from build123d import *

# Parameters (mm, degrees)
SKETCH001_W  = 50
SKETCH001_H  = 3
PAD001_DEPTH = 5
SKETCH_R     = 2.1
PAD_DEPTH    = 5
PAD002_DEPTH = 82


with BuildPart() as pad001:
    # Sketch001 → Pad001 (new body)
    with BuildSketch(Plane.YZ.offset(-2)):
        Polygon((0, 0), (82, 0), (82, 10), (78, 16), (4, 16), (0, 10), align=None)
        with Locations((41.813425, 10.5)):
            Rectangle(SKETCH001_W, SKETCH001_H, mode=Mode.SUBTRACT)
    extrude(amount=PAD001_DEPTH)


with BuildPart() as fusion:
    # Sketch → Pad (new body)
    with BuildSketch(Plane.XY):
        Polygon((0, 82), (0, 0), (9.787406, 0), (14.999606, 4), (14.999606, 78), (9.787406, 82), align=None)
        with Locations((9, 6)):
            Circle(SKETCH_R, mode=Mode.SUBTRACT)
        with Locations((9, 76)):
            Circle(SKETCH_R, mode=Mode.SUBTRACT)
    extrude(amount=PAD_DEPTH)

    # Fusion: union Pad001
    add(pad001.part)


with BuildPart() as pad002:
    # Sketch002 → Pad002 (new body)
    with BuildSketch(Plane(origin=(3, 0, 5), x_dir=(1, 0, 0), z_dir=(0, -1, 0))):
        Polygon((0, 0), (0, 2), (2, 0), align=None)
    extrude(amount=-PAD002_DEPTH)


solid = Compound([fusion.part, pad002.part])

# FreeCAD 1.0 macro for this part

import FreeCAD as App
import Part
import Sketcher

doc = App.newDocument("Part")
body = doc.addObject("PartDesign::Body", "Body")

# Sketch on YZ plane
sketch1 = body.newObject("Sketcher::SketchObject", "Sketch")
sketch1.AttachmentSupport = (doc.getObject("YZ_Plane"), [""])
sketch1.MapMode = "FlatFace"
sketch1.AttachmentOffset = App.Placement(App.Vector(0, 0, -2), App.Rotation())
sketch1.addGeometry(Part.LineSegment(App.Vector(0, 0, 0), App.Vector(82, 0, 0)), False)
sketch1.addGeometry(Part.LineSegment(App.Vector(82, 0, 0), App.Vector(82, 10, 0)), False)
sketch1.addGeometry(Part.LineSegment(App.Vector(82, 10, 0), App.Vector(78, 16, 0)), False)
sketch1.addGeometry(Part.LineSegment(App.Vector(78, 16, 0), App.Vector(4, 16, 0)), False)
sketch1.addGeometry(Part.LineSegment(App.Vector(4, 16, 0), App.Vector(0, 10, 0)), False)
sketch1.addGeometry(Part.LineSegment(App.Vector(0, 10, 0), App.Vector(0, 0, 0)), False)
sketch1.addGeometry(Part.LineSegment(App.Vector(66.8, 9, 0), App.Vector(16.8, 9, 0)), False)
sketch1.addGeometry(Part.LineSegment(App.Vector(16.8, 9, 0), App.Vector(16.8, 12, 0)), False)
sketch1.addGeometry(Part.LineSegment(App.Vector(16.8, 12, 0), App.Vector(66.8, 12, 0)), False)
sketch1.addGeometry(Part.LineSegment(App.Vector(66.8, 12, 0), App.Vector(66.8, 9, 0)), False)
sketch1.addConstraint(Sketcher.Constraint("Coincident", 0, 2, 1, 1))
sketch1.addConstraint(Sketcher.Constraint("Coincident", 1, 2, 2, 1))
sketch1.addConstraint(Sketcher.Constraint("Coincident", 2, 2, 3, 1))
sketch1.addConstraint(Sketcher.Constraint("Coincident", 3, 2, 4, 1))
sketch1.addConstraint(Sketcher.Constraint("Coincident", 4, 2, 5, 1))
sketch1.addConstraint(Sketcher.Constraint("Coincident", 5, 2, 0, 1))
sketch1.addConstraint(Sketcher.Constraint("Coincident", 6, 2, 7, 1))
sketch1.addConstraint(Sketcher.Constraint("Coincident", 7, 2, 8, 1))
sketch1.addConstraint(Sketcher.Constraint("Coincident", 8, 2, 9, 1))
sketch1.addConstraint(Sketcher.Constraint("Coincident", 9, 2, 6, 1))
sketch1.addConstraint(Sketcher.Constraint("Horizontal", 0))
sketch1.addConstraint(Sketcher.Constraint("Vertical", 1))
sketch1.addConstraint(Sketcher.Constraint("Horizontal", 3))
sketch1.addConstraint(Sketcher.Constraint("Vertical", 5))
sketch1.addConstraint(Sketcher.Constraint("Horizontal", 6))
sketch1.addConstraint(Sketcher.Constraint("Vertical", 7))
sketch1.addConstraint(Sketcher.Constraint("Horizontal", 8))
sketch1.addConstraint(Sketcher.Constraint("Vertical", 9))
sketch1.addConstraint(Sketcher.Constraint("Coincident", 5, 2, -1, 1))
sketch1.addConstraint(Sketcher.Constraint("Horizontal", 1, 2, 4, 2))
sketch1.addConstraint(Sketcher.Constraint("Equal", 2, 4))
sketch1.addConstraint(Sketcher.Constraint("DistanceX", 0, 1, 0, 2, 82.0))
sketch1.addConstraint(Sketcher.Constraint("DistanceX", 3, 2, 3, 1, 74.0))
sketch1.addConstraint(Sketcher.Constraint("DistanceX", 6, 2, 6, 1, 50.0))
sketch1.addConstraint(Sketcher.Constraint("DistanceY", 1, 1, 1, 2, 10.0))
sketch1.addConstraint(Sketcher.Constraint("DistanceY", 7, 1, 7, 2, 3.0))
sketch1.addConstraint(Sketcher.Constraint("DistanceY", -1, 1, 2, 2, 16.0))
sketch1.addConstraint(Sketcher.Constraint("DistanceY", -1, 1, 6, 2, 9.0))
sketch1.addConstraint(Sketcher.Constraint("DistanceX", -1, 1, 6, 2, 16.813425))
pad1 = body.newObject("PartDesign::Pad", "Pad")
pad1.Profile = sketch1
pad1.Length = 5
body2 = doc.addObject("PartDesign::Body", "Body001")

# Sketch on XY plane
sketch2 = body2.newObject("Sketcher::SketchObject", "Sketch001")
sketch2.AttachmentSupport = (doc.getObject("XY_Plane001"), [""])
sketch2.MapMode = "FlatFace"
sketch2.addGeometry(Part.LineSegment(App.Vector(0, 82, 0), App.Vector(0, 0, 0)), False)
sketch2.addGeometry(Part.LineSegment(App.Vector(0, 0, 0), App.Vector(9.8, 0, 0)), False)
sketch2.addGeometry(Part.LineSegment(App.Vector(9.8, 0, 0), App.Vector(15, 4, 0)), False)
sketch2.addGeometry(Part.LineSegment(App.Vector(15, 4, 0), App.Vector(15, 78, 0)), False)
sketch2.addGeometry(Part.LineSegment(App.Vector(15, 78, 0), App.Vector(9.8, 82, 0)), False)
sketch2.addGeometry(Part.LineSegment(App.Vector(9.8, 82, 0), App.Vector(0, 82, 0)), False)
sketch2.addGeometry(Part.Circle(App.Vector(9, 6, 0), App.Vector(0, 0, 1), 2.1), False)
sketch2.addGeometry(Part.Circle(App.Vector(9, 76, 0), App.Vector(0, 0, 1), 2.1), False)
sketch2.addConstraint(Sketcher.Constraint("Coincident", 0, 2, 1, 1))
sketch2.addConstraint(Sketcher.Constraint("Coincident", 1, 2, 2, 1))
sketch2.addConstraint(Sketcher.Constraint("Coincident", 2, 2, 3, 1))
sketch2.addConstraint(Sketcher.Constraint("Coincident", 3, 2, 4, 1))
sketch2.addConstraint(Sketcher.Constraint("Coincident", 4, 2, 5, 1))
sketch2.addConstraint(Sketcher.Constraint("Coincident", 5, 2, 0, 1))
sketch2.addConstraint(Sketcher.Constraint("Vertical", 0))
sketch2.addConstraint(Sketcher.Constraint("Horizontal", 1))
sketch2.addConstraint(Sketcher.Constraint("Vertical", 3))
sketch2.addConstraint(Sketcher.Constraint("Horizontal", 5))
sketch2.addConstraint(Sketcher.Constraint("Coincident", 0, 2, -1, 1))
sketch2.addConstraint(Sketcher.Constraint("Equal", 6, 7))
sketch2.addConstraint(Sketcher.Constraint("Vertical", 6, 3, 7, 3))
sketch2.addConstraint(Sketcher.Constraint("Vertical", 1, 2, 4, 2))
sketch2.addConstraint(Sketcher.Constraint("Equal", 2, 4))
sketch2.addConstraint(Sketcher.Constraint("Diameter", 6, 4.2))
sketch2.addConstraint(Sketcher.Constraint("DistanceY", 0, 2, 0, 1, 82.0))
sketch2.addConstraint(Sketcher.Constraint("DistanceY", 3, 1, 3, 2, 74.0))
sketch2.addConstraint(Sketcher.Constraint("DistanceX", -1, 1, 6, 3, 9.0))
sketch2.addConstraint(Sketcher.Constraint("DistanceY", -1, 1, 6, 3, 6.0))
sketch2.addConstraint(Sketcher.Constraint("DistanceY", -1, 1, 7, 3, 76.0))
sketch2.addConstraint(Sketcher.Constraint("DistanceX", 1, 2, 2, 2, 5.2122))
sketch2.addConstraint(Sketcher.Constraint("DistanceX", 1, 1, 1, 2, 9.787406))
pad2 = body2.newObject("PartDesign::Pad", "Pad001")
pad2.Profile = sketch2
pad2.Length = 5
doc.recompute()

boolean = body2.newObject("PartDesign::Boolean", "Boolean")
boolean.Type = "Fuse"
boolean.addObjects([body])
body3 = doc.addObject("PartDesign::Body", "Body002")

# Sketch on XZ plane
sketch3 = body3.newObject("Sketcher::SketchObject", "Sketch002")
sketch3.AttachmentSupport = (doc.getObject("XZ_Plane002"), [""])
sketch3.MapMode = "FlatFace"
sketch3.addGeometry(Part.LineSegment(App.Vector(3, 7, 0), App.Vector(3, 5, 0)), False)
sketch3.addGeometry(Part.LineSegment(App.Vector(3, 5, 0), App.Vector(5, 5, 0)), False)
sketch3.addGeometry(Part.LineSegment(App.Vector(5, 5, 0), App.Vector(3, 7, 0)), False)
sketch3.addConstraint(Sketcher.Constraint("Coincident", 0, 2, 1, 1))
sketch3.addConstraint(Sketcher.Constraint("Coincident", 1, 2, 2, 1))
sketch3.addConstraint(Sketcher.Constraint("Coincident", 2, 2, 0, 1))
sketch3.addConstraint(Sketcher.Constraint("Vertical", 0))
sketch3.addConstraint(Sketcher.Constraint("Horizontal", 1))
sketch3.addConstraint(Sketcher.Constraint("Equal", 1, 0))
sketch3.addConstraint(Sketcher.Constraint("DistanceX", 1, 1, 1, 2, 2.0))
sketch3.addConstraint(Sketcher.Constraint("DistanceX", -1, 1, 0, 2, 3.0))
sketch3.addConstraint(Sketcher.Constraint("DistanceY", -1, 1, 0, 2, 5.0))
pad3 = body3.newObject("PartDesign::Pad", "Pad002")
pad3.Profile = sketch3
pad3.Length = 82
pad3.Reversed = True

doc.recompute()
